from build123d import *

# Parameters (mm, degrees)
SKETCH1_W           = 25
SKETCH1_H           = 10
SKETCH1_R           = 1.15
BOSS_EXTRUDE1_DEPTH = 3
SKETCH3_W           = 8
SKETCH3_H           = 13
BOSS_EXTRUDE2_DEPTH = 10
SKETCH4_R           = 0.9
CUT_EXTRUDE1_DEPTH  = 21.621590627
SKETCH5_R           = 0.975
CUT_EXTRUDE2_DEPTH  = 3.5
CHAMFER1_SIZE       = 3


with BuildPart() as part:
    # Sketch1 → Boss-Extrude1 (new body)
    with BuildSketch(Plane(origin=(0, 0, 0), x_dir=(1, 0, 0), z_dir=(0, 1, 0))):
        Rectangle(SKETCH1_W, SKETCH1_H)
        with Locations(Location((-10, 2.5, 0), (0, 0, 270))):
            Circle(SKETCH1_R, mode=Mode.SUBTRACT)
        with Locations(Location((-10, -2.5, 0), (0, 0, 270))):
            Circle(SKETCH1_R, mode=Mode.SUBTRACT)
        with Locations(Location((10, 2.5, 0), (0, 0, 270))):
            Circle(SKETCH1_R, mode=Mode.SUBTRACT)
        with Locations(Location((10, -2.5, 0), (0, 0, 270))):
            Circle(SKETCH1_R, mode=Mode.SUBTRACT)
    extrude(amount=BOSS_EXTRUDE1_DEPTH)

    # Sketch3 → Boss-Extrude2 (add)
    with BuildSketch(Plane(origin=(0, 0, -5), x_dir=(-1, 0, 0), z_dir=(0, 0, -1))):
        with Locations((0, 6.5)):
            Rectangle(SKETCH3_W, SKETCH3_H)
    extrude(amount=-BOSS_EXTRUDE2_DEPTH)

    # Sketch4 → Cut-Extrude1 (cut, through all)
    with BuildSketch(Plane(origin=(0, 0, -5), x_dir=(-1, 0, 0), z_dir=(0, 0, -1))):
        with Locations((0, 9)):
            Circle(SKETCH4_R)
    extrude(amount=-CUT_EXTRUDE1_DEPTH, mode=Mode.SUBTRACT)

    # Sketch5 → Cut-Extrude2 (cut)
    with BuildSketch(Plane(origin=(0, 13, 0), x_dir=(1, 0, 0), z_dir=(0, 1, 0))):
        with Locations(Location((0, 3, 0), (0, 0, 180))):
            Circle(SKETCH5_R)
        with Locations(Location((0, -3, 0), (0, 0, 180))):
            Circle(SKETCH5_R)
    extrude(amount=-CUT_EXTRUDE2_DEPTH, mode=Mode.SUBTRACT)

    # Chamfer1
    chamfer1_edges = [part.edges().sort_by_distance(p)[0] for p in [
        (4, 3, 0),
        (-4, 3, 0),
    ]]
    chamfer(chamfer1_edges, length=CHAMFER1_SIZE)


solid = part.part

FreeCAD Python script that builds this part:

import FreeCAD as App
import Part
import Sketcher

V = App.Vector
Q = App.Units.Quantity


def edges_at(feature, points):
    """Names of the edges that pass closest to the given points."""
    edges = feature.Shape.Edges
    near = lambda p: min(range(len(edges)), key=lambda i: edges[i].distToShape(Part.Vertex(*p))[0])
    return sorted({f"Edge{near(p) + 1}" for p in points})


def add_polygon(sketch, points):
    """Adds a closed chain of lines whose ends are joined by coincident constraints."""
    first, n = sketch.GeometryCount, len(points)
    for a, b in zip(points, points[1:] + points[:1]):
        sketch.addGeometry(Part.LineSegment(App.Vector(*a, 0), App.Vector(*b, 0)), False)
    for i in range(n):
        sketch.addConstraint(Sketcher.Constraint("Coincident", first + i, 2, first + (i + 1) % n, 1))

doc = App.newDocument("Part")
params = doc.addObject("Spreadsheet::Sheet", "Params")
for row, (alias, value) in enumerate([
    ("sketch1_diameter", "2.3 mm"),
    ("sketch1_width", "25 mm"),
    ("sketch1_height", "10 mm"),
    ("pad1_length", "3 mm"),
    ("sketch2_width", "8 mm"),
    ("sketch2_height", "13 mm"),
    ("pad2_length", "10 mm"),
    ("sketch3_diameter", "1.8 mm"),
    ("sketch4_diameter", "1.95 mm"),
    ("pocket2_length", "3.5 mm"),
    ("chamfer_size", "3 mm"),
], start=1):
    params.set(f"A{row}", alias)
    params.set(f"B{row}", "=" + value)
    params.setAlias(f"B{row}", alias)

body = doc.addObject("PartDesign::Body", "Body")

sketch1 = doc.addObject("Sketcher::SketchObject", "Sketch")
body.addObject(sketch1)
sketch1.AttachmentSupport = (doc.XZ_Plane, [""])
sketch1.MapMode = "FlatFace"
add_polygon(sketch1, [(-12.5, -5), (-12.5, 5), (12.5, 5), (12.5, -5)])
sketch1.addGeometry(Part.Circle(V(-10, 2.5, 0), V(0, 0, 1), 1.1), False)
sketch1.addGeometry(Part.Circle(V(10, 2.5, 0), V(0, 0, 1), 1.1), False)
sketch1.addGeometry(Part.Circle(V(-10, -2.5, 0), V(0, 0, 1), 1.1), False)
sketch1.addGeometry(Part.Circle(V(10, -2.5, 0), V(0, 0, 1), 1.1), False)
sketch1.addConstraint([
    Sketcher.Constraint("Vertical", 0),
    Sketcher.Constraint("Horizontal", 1),
    Sketcher.Constraint("Vertical", 2),
    Sketcher.Constraint("Horizontal", 3),
    Sketcher.Constraint("Equal", 4, 5),
    Sketcher.Constraint("Equal", 5, 6),
    Sketcher.Constraint("Equal", 6, 7),
    Sketcher.Constraint("Symmetric", 5, 3, 6, 3, -1, 1),
    Sketcher.Constraint("Symmetric", 4, 3, 7, 3, -1, 1),
    Sketcher.Constraint("Symmetric", 0, 2, 2, 2, -1, 1),
    Sketcher.Constraint("Symmetric", 4, 3, 5, 3, -2),
    Sketcher.Constraint("Diameter", 4, Q("2.3 mm")),
    Sketcher.Constraint("DistanceX", 1, 1, 1, 2, Q("25 mm")),
    Sketcher.Constraint("DistanceY", 0, 1, 0, 2, Q("10 mm")),
    Sketcher.Constraint("DistanceX", 4, 3, -1, 1, Q("10 mm")),
    Sketcher.Constraint("DistanceY", 6, 3, 4, 3, Q("5 mm")),
])
sketch1.setExpression("Constraints[15]", "Params.sketch1_diameter")
sketch1.setExpression("Constraints[16]", "Params.sketch1_width")
sketch1.setExpression("Constraints[17]", "Params.sketch1_height")
pad1 = doc.addObject("PartDesign::Pad", "Pad")
body.addObject(pad1)
pad1.Profile = sketch1
pad1.setExpression("Length", "Params.pad1_length")
pad1.Reversed = True

sketch2 = doc.addObject("Sketcher::SketchObject", "Sketch001")
body.addObject(sketch2)
sketch2.AttachmentSupport = (doc.XY_Plane, [""])
sketch2.MapMode = "FlatFace"
sketch2.AttachmentOffset = App.Placement(V(0, 0, -5), App.Rotation())
add_polygon(sketch2, [(4, 13), (4, 0), (-4, 0), (-4, 13)])
sketch2.addConstraint([
    Sketcher.Constraint("Vertical", 0),
    Sketcher.Constraint("Horizontal", 1),
    Sketcher.Constraint("Vertical", 2),
    Sketcher.Constraint("Horizontal", 3),
    Sketcher.Constraint("Symmetric", 0, 2, 1, 2, -1, 1),
    Sketcher.Constraint("DistanceX", 1, 2, 1, 1, Q("8 mm")),
    Sketcher.Constraint("DistanceY", 0, 2, 0, 1, Q("13 mm")),
])
sketch2.setExpression("Constraints[9]", "Params.sketch2_width")
sketch2.setExpression("Constraints[10]", "Params.sketch2_height")
pad2 = doc.addObject("PartDesign::Pad", "Pad001")
body.addObject(pad2)
pad2.Profile = sketch2
pad2.setExpression("Length", "Params.pad2_length")

sketch3 = doc.addObject("Sketcher::SketchObject", "Sketch002")
body.addObject(sketch3)
sketch3.AttachmentSupport = (doc.XY_Plane, [""])
sketch3.MapMode = "FlatFace"
sketch3.AttachmentOffset = App.Placement(V(0, 0, -5), App.Rotation())
sketch3.addGeometry(Part.Circle(V(0, 9, 0), V(0, 0, 1), 0.9), False)
sketch3.addConstraint([
    Sketcher.Constraint("PointOnObject", 0, 3, -2),
    Sketcher.Constraint("Diameter", 0, Q("1.8 mm")),
    Sketcher.Constraint("DistanceY", -1, 1, 0, 3, Q("9 mm")),
])
sketch3.setExpression("Constraints[1]", "Params.sketch3_diameter")
pocket1 = doc.addObject("PartDesign::Pocket", "Pocket")
body.addObject(pocket1)
pocket1.Profile = sketch3
pocket1.Type = "ThroughAll"
pocket1.Reversed = True

sketch4 = doc.addObject("Sketcher::SketchObject", "Sketch003")
body.addObject(sketch4)
sketch4.AttachmentSupport = (doc.XZ_Plane, [""])
sketch4.MapMode = "FlatFace"
sketch4.AttachmentOffset = App.Placement(V(0, 0, -13), App.Rotation())
sketch4.addGeometry([
    Part.Circle(V(0, -3, 0), V(0, 0, 1), 1),
    Part.Circle(V(0, 3, 0), V(0, 0, 1), 1),
], False)
sketch4.addConstraint([
    Sketcher.Constraint("Equal", 0, 1),
    Sketcher.Constraint("Symmetric", 0, 3, 1, 3, -1, 1),
    Sketcher.Constraint("PointOnObject", 0, 3, -2),
    Sketcher.Constraint("Diameter", 0, Q("1.95 mm")),
    Sketcher.Constraint("DistanceY", 0, 3, -1, 1, Q("3 mm")),
])
sketch4.setExpression("Constraints[3]", "Params.sketch4_diameter")
pocket2 = doc.addObject("PartDesign::Pocket", "Pocket001")
body.addObject(pocket2)
pocket2.Profile = sketch4
pocket2.setExpression("Length", "Params.pocket2_length")
pocket2.Reversed = True
doc.recompute()

chamfer = doc.addObject("PartDesign::Chamfer", "Chamfer")
body.addObject(chamfer)
chamfer.Base = (pocket2, edges_at(pocket2, [(4, 3, 0), (-4, 3, 0)]))
chamfer.setExpression("Size", "Params.chamfer_size")

doc.recompute()
